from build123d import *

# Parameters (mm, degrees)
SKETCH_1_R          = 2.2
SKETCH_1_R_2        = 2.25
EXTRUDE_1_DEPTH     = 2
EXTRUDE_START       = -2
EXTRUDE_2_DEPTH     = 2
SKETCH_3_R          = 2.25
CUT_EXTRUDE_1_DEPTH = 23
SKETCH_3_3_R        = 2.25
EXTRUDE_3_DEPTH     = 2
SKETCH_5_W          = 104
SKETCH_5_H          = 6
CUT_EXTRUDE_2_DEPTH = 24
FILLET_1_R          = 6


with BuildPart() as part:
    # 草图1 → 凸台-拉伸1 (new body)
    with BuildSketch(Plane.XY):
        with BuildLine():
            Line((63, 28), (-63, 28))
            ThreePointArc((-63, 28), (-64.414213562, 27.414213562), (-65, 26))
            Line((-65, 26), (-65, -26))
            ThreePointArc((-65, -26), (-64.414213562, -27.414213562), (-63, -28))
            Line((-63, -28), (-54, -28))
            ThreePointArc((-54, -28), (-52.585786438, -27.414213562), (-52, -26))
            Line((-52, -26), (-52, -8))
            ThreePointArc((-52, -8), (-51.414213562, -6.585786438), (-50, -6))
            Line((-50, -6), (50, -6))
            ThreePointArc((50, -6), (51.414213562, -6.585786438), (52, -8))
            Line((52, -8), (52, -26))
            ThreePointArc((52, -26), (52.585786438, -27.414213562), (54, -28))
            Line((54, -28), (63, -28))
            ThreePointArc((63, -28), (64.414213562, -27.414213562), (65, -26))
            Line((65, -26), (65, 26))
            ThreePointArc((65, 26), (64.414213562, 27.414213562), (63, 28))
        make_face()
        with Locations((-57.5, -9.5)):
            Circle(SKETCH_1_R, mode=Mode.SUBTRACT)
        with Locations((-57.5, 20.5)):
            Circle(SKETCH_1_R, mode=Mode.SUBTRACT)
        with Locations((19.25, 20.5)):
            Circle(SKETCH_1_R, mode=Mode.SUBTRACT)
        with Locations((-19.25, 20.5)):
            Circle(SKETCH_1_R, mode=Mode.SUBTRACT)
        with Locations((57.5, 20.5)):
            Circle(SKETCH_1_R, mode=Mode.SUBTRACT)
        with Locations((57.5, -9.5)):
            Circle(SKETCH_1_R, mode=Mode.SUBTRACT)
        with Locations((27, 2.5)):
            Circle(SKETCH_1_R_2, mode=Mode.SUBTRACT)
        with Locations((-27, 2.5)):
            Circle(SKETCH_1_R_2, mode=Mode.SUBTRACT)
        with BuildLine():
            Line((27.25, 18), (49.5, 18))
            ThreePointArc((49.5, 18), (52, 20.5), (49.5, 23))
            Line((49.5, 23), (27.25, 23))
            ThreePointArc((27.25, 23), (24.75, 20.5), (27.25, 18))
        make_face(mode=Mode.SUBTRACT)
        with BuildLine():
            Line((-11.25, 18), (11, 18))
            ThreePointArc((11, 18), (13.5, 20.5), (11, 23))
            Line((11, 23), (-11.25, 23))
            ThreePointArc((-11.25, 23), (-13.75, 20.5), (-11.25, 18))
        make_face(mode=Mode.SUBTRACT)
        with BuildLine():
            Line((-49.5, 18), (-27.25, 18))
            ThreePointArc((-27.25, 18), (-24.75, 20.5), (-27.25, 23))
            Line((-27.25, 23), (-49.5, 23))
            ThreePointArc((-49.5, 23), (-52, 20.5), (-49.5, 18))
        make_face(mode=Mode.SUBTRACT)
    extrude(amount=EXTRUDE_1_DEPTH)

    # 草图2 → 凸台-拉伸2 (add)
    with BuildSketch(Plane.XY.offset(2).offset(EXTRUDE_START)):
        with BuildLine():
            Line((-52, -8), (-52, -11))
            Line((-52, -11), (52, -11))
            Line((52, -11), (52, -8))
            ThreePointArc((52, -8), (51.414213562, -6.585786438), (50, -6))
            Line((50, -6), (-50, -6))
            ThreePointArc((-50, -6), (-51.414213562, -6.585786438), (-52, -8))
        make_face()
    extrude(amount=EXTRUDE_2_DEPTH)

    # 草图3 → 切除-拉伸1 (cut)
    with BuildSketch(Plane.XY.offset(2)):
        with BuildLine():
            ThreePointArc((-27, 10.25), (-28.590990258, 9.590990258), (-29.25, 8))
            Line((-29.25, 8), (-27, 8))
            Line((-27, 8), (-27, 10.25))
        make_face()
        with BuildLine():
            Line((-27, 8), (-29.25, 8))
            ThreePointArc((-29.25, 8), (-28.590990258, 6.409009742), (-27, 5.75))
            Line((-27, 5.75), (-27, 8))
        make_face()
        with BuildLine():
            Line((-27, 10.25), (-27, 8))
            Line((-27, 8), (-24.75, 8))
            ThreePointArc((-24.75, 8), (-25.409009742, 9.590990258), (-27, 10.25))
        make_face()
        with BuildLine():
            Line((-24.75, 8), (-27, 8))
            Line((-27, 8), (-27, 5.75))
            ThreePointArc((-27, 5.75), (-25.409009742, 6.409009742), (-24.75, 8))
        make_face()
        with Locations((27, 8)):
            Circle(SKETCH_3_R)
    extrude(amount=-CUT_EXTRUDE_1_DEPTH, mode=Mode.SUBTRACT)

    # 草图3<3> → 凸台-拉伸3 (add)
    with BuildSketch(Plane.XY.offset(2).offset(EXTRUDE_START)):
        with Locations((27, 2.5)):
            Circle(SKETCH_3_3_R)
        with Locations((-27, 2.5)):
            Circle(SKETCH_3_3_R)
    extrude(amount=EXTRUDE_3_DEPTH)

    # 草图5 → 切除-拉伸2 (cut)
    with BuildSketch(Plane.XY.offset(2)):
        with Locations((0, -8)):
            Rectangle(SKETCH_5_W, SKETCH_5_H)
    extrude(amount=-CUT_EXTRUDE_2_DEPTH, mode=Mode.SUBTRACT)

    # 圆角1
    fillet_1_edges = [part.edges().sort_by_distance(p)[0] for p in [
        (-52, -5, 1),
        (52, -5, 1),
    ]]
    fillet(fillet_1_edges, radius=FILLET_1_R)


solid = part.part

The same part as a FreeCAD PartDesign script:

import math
import FreeCAD as App
import Part
import Sketcher
from FreeCAD import Vector


def edges_at(feature, points):
    """Names of the edges that pass closest to the given points."""
    edges = feature.Shape.Edges
    near = lambda p: min(range(len(edges)), key=lambda i: edges[i].distToShape(Part.Vertex(*p))[0])
    return sorted({f"Edge{near(p) + 1}" for p in points})

doc = App.newDocument("Part")
body = doc.addObject("PartDesign::Body", "Body")

# Sketch on XY plane
sketch1 = doc.addObject("Sketcher::SketchObject", "Sketch")
body.addObject(sketch1)
sketch1.AttachmentSupport = (doc.XY_Plane, [""])
sketch1.MapMode = "FlatFace"
sketch1.addGeometry([
    Part.LineSegment(Vector(63, 28, 0), Vector(-63, 28, 0)),  # 0
    Part.ArcOfCircle(Part.Circle(Vector(-63, 26, 0), Vector(0, 0, 1), 2), math.radians(90), math.radians(180)),  # 1
    Part.LineSegment(Vector(-65, 26, 0), Vector(-65, -26, 0)),  # 2
    Part.ArcOfCircle(Part.Circle(Vector(-63, -26, 0), Vector(0, 0, 1), 2), math.radians(-180), math.radians(-90)),  # 3
    Part.LineSegment(Vector(-63, -28, 0), Vector(-54, -28, 0)),  # 4
    Part.ArcOfCircle(Part.Circle(Vector(-54, -26, 0), Vector(0, 0, 1), 2), math.radians(-90), math.radians(0)),  # 5
    Part.LineSegment(Vector(-52, -26, 0), Vector(-52, -8, 0)),  # 6
    Part.ArcOfCircle(Part.Circle(Vector(-50, -8, 0), Vector(0, 0, 1), 2), math.radians(90), math.radians(180)),  # 7
    Part.LineSegment(Vector(-50, -6, 0), Vector(50, -6, 0)),  # 8
    Part.ArcOfCircle(Part.Circle(Vector(50, -8, 0), Vector(0, 0, 1), 2), math.radians(0), math.radians(90)),  # 9
    Part.LineSegment(Vector(52, -8, 0), Vector(52, -26, 0)),  # 10
    Part.ArcOfCircle(Part.Circle(Vector(54, -26, 0), Vector(0, 0, 1), 2), math.radians(-180), math.radians(-90)),  # 11
    Part.LineSegment(Vector(54, -28, 0), Vector(63, -28, 0)),  # 12
    Part.ArcOfCircle(Part.Circle(Vector(63, -26, 0), Vector(0, 0, 1), 2), math.radians(-90), math.radians(0)),  # 13
    Part.LineSegment(Vector(65, -26, 0), Vector(65, 26, 0)),  # 14
    Part.ArcOfCircle(Part.Circle(Vector(63, 26, 0), Vector(0, 0, 1), 2), math.radians(0), math.radians(90)),  # 15
    Part.Circle(Vector(-57.5, -9.5, 0), Vector(0, 0, 1), 2.2),  # 16
    Part.Circle(Vector(-27, 2.5, 0), Vector(0, 0, 1), 2.2),  # 17
    Part.Circle(Vector(57.5, -9.5, 0), Vector(0, 0, 1), 2.2),  # 18
    Part.Circle(Vector(27, 2.5, 0), Vector(0, 0, 1), 2.2),  # 19
    Part.Circle(Vector(-57.5, 20.5, 0), Vector(0, 0, 1), 2.2),  # 20
    Part.LineSegment(Vector(-27.2, 18, 0), Vector(-49.5, 18, 0)),  # 21
    Part.ArcOfCircle(Part.Circle(Vector(-49.5, 20.5, 0), Vector(0, 0, 1), 2.5), math.radians(90), math.radians(270)),  # 22
    Part.LineSegment(Vector(-49.5, 23, 0), Vector(-27.2, 23, 0)),  # 23
    Part.ArcOfCircle(Part.Circle(Vector(-27.2, 20.5, 0), Vector(0, 0, 1), 2.5), math.radians(-90), math.radians(90)),  # 24
    Part.Circle(Vector(-19.2, 20.5, 0), Vector(0, 0, 1), 2.2),  # 25
    Part.LineSegment(Vector(11, 18, 0), Vector(-11.2, 18, 0)),  # 26
    Part.ArcOfCircle(Part.Circle(Vector(-11.2, 20.5, 0), Vector(0, 0, 1), 2.5), math.radians(90), math.radians(270)),  # 27
    Part.LineSegment(Vector(-11.2, 23, 0), Vector(11, 23, 0)),  # 28
    Part.ArcOfCircle(Part.Circle(Vector(11, 20.5, 0), Vector(0, 0, 1), 2.5), math.radians(-90), math.radians(90)),  # 29
    Part.Circle(Vector(19.2, 20.5, 0), Vector(0, 0, 1), 2.2),  # 30
    Part.LineSegment(Vector(49.5, 18, 0), Vector(27.2, 18, 0)),  # 31
    Part.ArcOfCircle(Part.Circle(Vector(27.2, 20.5, 0), Vector(0, 0, 1), 2.5), math.radians(90), math.radians(270)),  # 32
    Part.LineSegment(Vector(27.2, 23, 0), Vector(49.5, 23, 0)),  # 33
    Part.ArcOfCircle(Part.Circle(Vector(49.5, 20.5, 0), Vector(0, 0, 1), 2.5), math.radians(-90), math.radians(90)),  # 34
    Part.Circle(Vector(57.5, 20.5, 0), Vector(0, 0, 1), 2.2),  # 35
], False)
sketch1.addConstraint([
    Sketcher.Constraint("Tangent", 0, 2, 1, 1),
    Sketcher.Constraint("Tangent", 1, 2, 2, 1),
    Sketcher.Constraint("Tangent", 2, 2, 3, 1),
    Sketcher.Constraint("Tangent", 3, 2, 4, 1),
    Sketcher.Constraint("Tangent", 4, 2, 5, 1),
    Sketcher.Constraint("Tangent", 5, 2, 6, 1),
    Sketcher.Constraint("Tangent", 6, 2, 7, 2),
    Sketcher.Constraint("Tangent", 7, 1, 8, 1),
    Sketcher.Constraint("Tangent", 8, 2, 9, 2),
    Sketcher.Constraint("Tangent", 9, 1, 10, 1),
    Sketcher.Constraint("Tangent", 10, 2, 11, 1),
    Sketcher.Constraint("Tangent", 11, 2, 12, 1),
    Sketcher.Constraint("Tangent", 12, 2, 13, 1),
    Sketcher.Constraint("Tangent", 13, 2, 14, 1),
    Sketcher.Constraint("Tangent", 14, 2, 15, 1),
    Sketcher.Constraint("Tangent", 15, 2, 0, 1),
    Sketcher.Constraint("Tangent", 21, 2, 22, 2),
    Sketcher.Constraint("Tangent", 22, 1, 23, 1),
    Sketcher.Constraint("Tangent", 23, 2, 24, 2),
    Sketcher.Constraint("Tangent", 24, 1, 21, 1),
    Sketcher.Constraint("Tangent", 26, 2, 27, 2),
    Sketcher.Constraint("Tangent", 27, 1, 28, 1),
    Sketcher.Constraint("Tangent", 28, 2, 29, 2),
    Sketcher.Constraint("Tangent", 29, 1, 26, 1),
    Sketcher.Constraint("Tangent", 31, 2, 32, 2),
    Sketcher.Constraint("Tangent", 32, 1, 33, 1),
    Sketcher.Constraint("Tangent", 33, 2, 34, 2),
    Sketcher.Constraint("Tangent", 34, 1, 31, 1),
    Sketcher.Constraint("Horizontal", 0),
    Sketcher.Constraint("Vertical", 2),
    Sketcher.Constraint("Horizontal", 4),
    Sketcher.Constraint("Vertical", 6),
    Sketcher.Constraint("Horizontal", 8),
    Sketcher.Constraint("Vertical", 10),
    Sketcher.Constraint("Horizontal", 12),
    Sketcher.Constraint("Vertical", 14),
    Sketcher.Constraint("Horizontal", 21),
    Sketcher.Constraint("Horizontal", 23),
    Sketcher.Constraint("Horizontal", 26),
    Sketcher.Constraint("Horizontal", 28),
    Sketcher.Constraint("Horizontal", 31),
    Sketcher.Constraint("Horizontal", 33),
    Sketcher.Constraint("Equal", 1, 3),
    Sketcher.Constraint("Equal", 3, 5),
    Sketcher.Constraint("Equal", 5, 7),
    Sketcher.Constraint("Equal", 7, 9),
    Sketcher.Constraint("Equal", 9, 11),
    Sketcher.Constraint("Equal", 11, 13),
    Sketcher.Constraint("Equal", 13, 15),
    Sketcher.Constraint("Equal", 16, 18),
    Sketcher.Constraint("Equal", 17, 19),
    Sketcher.Constraint("Equal", 18, 20),
    Sketcher.Constraint("Equal", 20, 25),
    Sketcher.Constraint("Equal", 24, 27),
    Sketcher.Constraint("Equal", 25, 30),
    Sketcher.Constraint("Equal", 29, 32),
    Sketcher.Constraint("Equal", 30, 35),
    Sketcher.Constraint("Symmetric", 1, 3, 13, 3, -1, 1),
    Sketcher.Constraint("Symmetric", 5, 3, 11, 3, -2),
    Sketcher.Constraint("Symmetric", 16, 3, 18, 3, -2),
    Sketcher.Constraint("Symmetric", 17, 3, 19, 3, -2),
    Sketcher.Constraint("Symmetric", 25, 3, 30, 3, -2),
    Sketcher.Constraint("Symmetric", 24, 3, 32, 3, -2),
    Sketcher.Constraint("Symmetric", 20, 3, 35, 3, -2),
    Sketcher.Constraint("Horizontal", 20, 3, 22, 3),
    Sketcher.Constraint("Horizontal", 24, 3, 25, 3),
    Sketcher.Constraint("Horizontal", 25, 3, 27, 3),
    Sketcher.Constraint("Vertical", 16, 3, 20, 3),
    Sketcher.Constraint("Equal", 23, 26),
    Sketcher.Constraint("Equal", 28, 31),
    Sketcher.Constraint("Radius", 1, 2.0),
    Sketcher.Constraint("Diameter", 16, 4.4),
    Sketcher.Constraint("Diameter", 17, 4.5),
    Sketcher.Constraint("Radius", 22, 2.5),
    Sketcher.Constraint("DistanceX", 0, 2, 0, 1, 126.0),
    Sketcher.Constraint("DistanceX", 4, 1, 4, 2, 9.0),
    Sketcher.Constraint("DistanceY", 2, 2, 2, 1, 52.0),
    Sketcher.Constraint("DistanceY", 6, 1, 6, 2, 18.0),
    Sketcher.Constraint("DistanceX", 17, 3, -1, 1, 27.0),
    Sketcher.Constraint("DistanceX", -1, 1, 29, 3, 11.0),
    Sketcher.Constraint("DistanceY", -1, 1, 21, 2, 18.0),
    Sketcher.Constraint("DistanceY", 16, 3, 17, 3, 12.0),
    Sketcher.Constraint("DistanceY", 16, 3, 20, 3, 30.0),
    Sketcher.Constraint("DistanceX", 20, 3, 22, 3, 8.0),
    Sketcher.Constraint("DistanceX", 24, 3, 25, 3, 8.0),
    Sketcher.Constraint("DistanceX", 25, 3, 27, 3, 8.0),
    Sketcher.Constraint("DistanceX", 21, 2, 21, 1, 22.25),
])
pad1 = doc.addObject("PartDesign::Pad", "Pad")
body.addObject(pad1)
pad1.Profile = sketch1
pad1.Length = 2

# Sketch on XY plane
sketch2 = doc.addObject("Sketcher::SketchObject", "Sketch001")
body.addObject(sketch2)
sketch2.AttachmentSupport = (doc.XY_Plane, [""])
sketch2.MapMode = "FlatFace"
sketch2.addGeometry([
    Part.LineSegment(Vector(-52, -8, 0), Vector(-52, -11, 0)),  # 0
    Part.LineSegment(Vector(-52, -11, 0), Vector(52, -11, 0)),  # 1
    Part.LineSegment(Vector(52, -11, 0), Vector(52, -8, 0)),  # 2
    Part.ArcOfCircle(Part.Circle(Vector(50, -8, 0), Vector(0, 0, 1), 2), math.radians(0), math.radians(90)),  # 3
    Part.LineSegment(Vector(50, -6, 0), Vector(-50, -6, 0)),  # 4
    Part.ArcOfCircle(Part.Circle(Vector(-50, -8, 0), Vector(0, 0, 1), 2), math.radians(90), math.radians(180)),  # 5
], False)
sketch2.addConstraint([
    Sketcher.Constraint("Coincident", 0, 2, 1, 1),
    Sketcher.Constraint("Coincident", 1, 2, 2, 1),
    Sketcher.Constraint("Tangent", 2, 2, 3, 1),
    Sketcher.Constraint("Tangent", 3, 2, 4, 1),
    Sketcher.Constraint("Tangent", 4, 2, 5, 1),
    Sketcher.Constraint("Tangent", 5, 2, 0, 1),
    Sketcher.Constraint("Vertical", 0),
    Sketcher.Constraint("Horizontal", 1),
    Sketcher.Constraint("Vertical", 2),
    Sketcher.Constraint("Horizontal", 4),
    Sketcher.Constraint("Equal", 3, 5),
    Sketcher.Constraint("Radius", 3, 2.0),
    Sketcher.Constraint("DistanceX", 1, 1, 1, 2, 104.0),
    Sketcher.Constraint("DistanceY", 0, 2, 0, 1, 3.0),
    Sketcher.Constraint("DistanceX", -1, 1, 3, 3, 50.0),
    Sketcher.Constraint("DistanceY", 3, 3, -1, 1, 8.0),
])
pad2 = doc.addObject("PartDesign::Pad", "Pad001")
body.addObject(pad2)
pad2.Profile = sketch2
pad2.Length = 2

# Sketch on XY plane
sketch3 = doc.addObject("Sketcher::SketchObject", "Sketch002")
body.addObject(sketch3)
sketch3.AttachmentSupport = (doc.XY_Plane, [""])
sketch3.MapMode = "FlatFace"
sketch3.AttachmentOffset = App.Placement(Vector(0, 0, 2), App.Rotation())
sketch3.addGeometry([
    Part.ArcOfCircle(Part.Circle(Vector(-27, 8, 0), Vector(0, 0, 1), 2.2), math.radians(180), math.radians(270)),  # 0
    Part.ArcOfCircle(Part.Circle(Vector(-27, 8, 0), Vector(0, 0, 1), 2.2), math.radians(-90), math.radians(0)),  # 1
    Part.ArcOfCircle(Part.Circle(Vector(-27, 8, 0), Vector(0, 0, 1), 2.2), math.radians(0), math.radians(90)),  # 2
    Part.ArcOfCircle(Part.Circle(Vector(-27, 8, 0), Vector(0, 0, 1), 2.2), math.radians(90), math.radians(180)),  # 3
    Part.Circle(Vector(27, 8, 0), Vector(0, 0, 1), 2.2),  # 4
], False)
sketch3.addConstraint([
    Sketcher.Constraint("Tangent", 0, 2, 1, 1),
    Sketcher.Constraint("Tangent", 1, 2, 2, 1),
    Sketcher.Constraint("Tangent", 2, 2, 3, 1),
    Sketcher.Constraint("Tangent", 3, 2, 0, 1),
    Sketcher.Constraint("Equal", 0, 1),
    Sketcher.Constraint("Equal", 3, 4),
    Sketcher.Constraint("Symmetric", 0, 3, 4, 3, -2),
    Sketcher.Constraint("Horizontal", 4, 3, 1, 2),
    Sketcher.Constraint("Horizontal", 1, 2, 3, 2),
    Sketcher.Constraint("Vertical", 3, 3, 0, 2),
    Sketcher.Constraint("Vertical", 0, 2, 2, 2),
    Sketcher.Constraint("Diameter", 4, 4.5),
    Sketcher.Constraint("DistanceX", 0, 3, -1, 1, 27.0),
    Sketcher.Constraint("DistanceY", -1, 1, 0, 3, 8.0),
])
pocket1 = doc.addObject("PartDesign::Pocket", "Pocket")
body.addObject(pocket1)
pocket1.Profile = sketch3
pocket1.Length = 23

# Sketch on XY plane
sketch4 = doc.addObject("Sketcher::SketchObject", "Sketch003")
body.addObject(sketch4)
sketch4.AttachmentSupport = (doc.XY_Plane, [""])
sketch4.MapMode = "FlatFace"
sketch4.addGeometry([
    Part.Circle(Vector(27, 2.5, 0), Vector(0, 0, 1), 2.2),
    Part.Circle(Vector(-27, 2.5, 0), Vector(0, 0, 1), 2.2),
], False)
sketch4.addConstraint([
    Sketcher.Constraint("Equal", 0, 1),
    Sketcher.Constraint("Symmetric", 0, 3, 1, 3, -2),
    Sketcher.Constraint("Diameter", 0, 4.5),
    Sketcher.Constraint("DistanceX", -1, 1, 0, 3, 27.0),
    Sketcher.Constraint("DistanceY", -1, 1, 0, 3, 2.5),
])
pad3 = doc.addObject("PartDesign::Pad", "Pad002")
body.addObject(pad3)
pad3.Profile = sketch4
pad3.Length = 2

# Sketch on XY plane
sketch5 = doc.addObject("Sketcher::SketchObject", "Sketch004")
body.addObject(sketch5)
sketch5.AttachmentSupport = (doc.XY_Plane, [""])
sketch5.MapMode = "FlatFace"
sketch5.AttachmentOffset = App.Placement(Vector(0, 0, 2), App.Rotation())
sketch5.addGeometry([
    Part.LineSegment(Vector(-52, -5, 0), Vector(-52, -11, 0)),
    Part.LineSegment(Vector(-52, -11, 0), Vector(52, -11, 0)),
    Part.LineSegment(Vector(52, -11, 0), Vector(52, -5, 0)),
    Part.LineSegment(Vector(52, -5, 0), Vector(-52, -5, 0)),
], False)
sketch5.addConstraint([
    Sketcher.Constraint("Coincident", 0, 2, 1, 1),
    Sketcher.Constraint("Coincident", 1, 2, 2, 1),
    Sketcher.Constraint("Coincident", 2, 2, 3, 1),
    Sketcher.Constraint("Coincident", 3, 2, 0, 1),
    Sketcher.Constraint("Vertical", 0),
    Sketcher.Constraint("Horizontal", 1),
    Sketcher.Constraint("Vertical", 2),
    Sketcher.Constraint("Horizontal", 3),
    Sketcher.Constraint("DistanceX", 1, 1, 1, 2, 104.0),
    Sketcher.Constraint("DistanceY", 0, 2, 0, 1, 6.0),
    Sketcher.Constraint("DistanceX", 0, 2, -1, 1, 52.0),
    Sketcher.Constraint("DistanceY", 0, 2, -1, 1, 11.0),
])
pocket2 = doc.addObject("PartDesign::Pocket", "Pocket001")
body.addObject(pocket2)
pocket2.Profile = sketch5
pocket2.Length = 24
doc.recompute()

fillet = doc.addObject("PartDesign::Fillet", "Fillet")
body.addObject(fillet)
fillet.Base = (pocket2, edges_at(pocket2, [(-52, -5, 1), (52, -5, 1)]))
fillet.Radius = 6

doc.recompute()
